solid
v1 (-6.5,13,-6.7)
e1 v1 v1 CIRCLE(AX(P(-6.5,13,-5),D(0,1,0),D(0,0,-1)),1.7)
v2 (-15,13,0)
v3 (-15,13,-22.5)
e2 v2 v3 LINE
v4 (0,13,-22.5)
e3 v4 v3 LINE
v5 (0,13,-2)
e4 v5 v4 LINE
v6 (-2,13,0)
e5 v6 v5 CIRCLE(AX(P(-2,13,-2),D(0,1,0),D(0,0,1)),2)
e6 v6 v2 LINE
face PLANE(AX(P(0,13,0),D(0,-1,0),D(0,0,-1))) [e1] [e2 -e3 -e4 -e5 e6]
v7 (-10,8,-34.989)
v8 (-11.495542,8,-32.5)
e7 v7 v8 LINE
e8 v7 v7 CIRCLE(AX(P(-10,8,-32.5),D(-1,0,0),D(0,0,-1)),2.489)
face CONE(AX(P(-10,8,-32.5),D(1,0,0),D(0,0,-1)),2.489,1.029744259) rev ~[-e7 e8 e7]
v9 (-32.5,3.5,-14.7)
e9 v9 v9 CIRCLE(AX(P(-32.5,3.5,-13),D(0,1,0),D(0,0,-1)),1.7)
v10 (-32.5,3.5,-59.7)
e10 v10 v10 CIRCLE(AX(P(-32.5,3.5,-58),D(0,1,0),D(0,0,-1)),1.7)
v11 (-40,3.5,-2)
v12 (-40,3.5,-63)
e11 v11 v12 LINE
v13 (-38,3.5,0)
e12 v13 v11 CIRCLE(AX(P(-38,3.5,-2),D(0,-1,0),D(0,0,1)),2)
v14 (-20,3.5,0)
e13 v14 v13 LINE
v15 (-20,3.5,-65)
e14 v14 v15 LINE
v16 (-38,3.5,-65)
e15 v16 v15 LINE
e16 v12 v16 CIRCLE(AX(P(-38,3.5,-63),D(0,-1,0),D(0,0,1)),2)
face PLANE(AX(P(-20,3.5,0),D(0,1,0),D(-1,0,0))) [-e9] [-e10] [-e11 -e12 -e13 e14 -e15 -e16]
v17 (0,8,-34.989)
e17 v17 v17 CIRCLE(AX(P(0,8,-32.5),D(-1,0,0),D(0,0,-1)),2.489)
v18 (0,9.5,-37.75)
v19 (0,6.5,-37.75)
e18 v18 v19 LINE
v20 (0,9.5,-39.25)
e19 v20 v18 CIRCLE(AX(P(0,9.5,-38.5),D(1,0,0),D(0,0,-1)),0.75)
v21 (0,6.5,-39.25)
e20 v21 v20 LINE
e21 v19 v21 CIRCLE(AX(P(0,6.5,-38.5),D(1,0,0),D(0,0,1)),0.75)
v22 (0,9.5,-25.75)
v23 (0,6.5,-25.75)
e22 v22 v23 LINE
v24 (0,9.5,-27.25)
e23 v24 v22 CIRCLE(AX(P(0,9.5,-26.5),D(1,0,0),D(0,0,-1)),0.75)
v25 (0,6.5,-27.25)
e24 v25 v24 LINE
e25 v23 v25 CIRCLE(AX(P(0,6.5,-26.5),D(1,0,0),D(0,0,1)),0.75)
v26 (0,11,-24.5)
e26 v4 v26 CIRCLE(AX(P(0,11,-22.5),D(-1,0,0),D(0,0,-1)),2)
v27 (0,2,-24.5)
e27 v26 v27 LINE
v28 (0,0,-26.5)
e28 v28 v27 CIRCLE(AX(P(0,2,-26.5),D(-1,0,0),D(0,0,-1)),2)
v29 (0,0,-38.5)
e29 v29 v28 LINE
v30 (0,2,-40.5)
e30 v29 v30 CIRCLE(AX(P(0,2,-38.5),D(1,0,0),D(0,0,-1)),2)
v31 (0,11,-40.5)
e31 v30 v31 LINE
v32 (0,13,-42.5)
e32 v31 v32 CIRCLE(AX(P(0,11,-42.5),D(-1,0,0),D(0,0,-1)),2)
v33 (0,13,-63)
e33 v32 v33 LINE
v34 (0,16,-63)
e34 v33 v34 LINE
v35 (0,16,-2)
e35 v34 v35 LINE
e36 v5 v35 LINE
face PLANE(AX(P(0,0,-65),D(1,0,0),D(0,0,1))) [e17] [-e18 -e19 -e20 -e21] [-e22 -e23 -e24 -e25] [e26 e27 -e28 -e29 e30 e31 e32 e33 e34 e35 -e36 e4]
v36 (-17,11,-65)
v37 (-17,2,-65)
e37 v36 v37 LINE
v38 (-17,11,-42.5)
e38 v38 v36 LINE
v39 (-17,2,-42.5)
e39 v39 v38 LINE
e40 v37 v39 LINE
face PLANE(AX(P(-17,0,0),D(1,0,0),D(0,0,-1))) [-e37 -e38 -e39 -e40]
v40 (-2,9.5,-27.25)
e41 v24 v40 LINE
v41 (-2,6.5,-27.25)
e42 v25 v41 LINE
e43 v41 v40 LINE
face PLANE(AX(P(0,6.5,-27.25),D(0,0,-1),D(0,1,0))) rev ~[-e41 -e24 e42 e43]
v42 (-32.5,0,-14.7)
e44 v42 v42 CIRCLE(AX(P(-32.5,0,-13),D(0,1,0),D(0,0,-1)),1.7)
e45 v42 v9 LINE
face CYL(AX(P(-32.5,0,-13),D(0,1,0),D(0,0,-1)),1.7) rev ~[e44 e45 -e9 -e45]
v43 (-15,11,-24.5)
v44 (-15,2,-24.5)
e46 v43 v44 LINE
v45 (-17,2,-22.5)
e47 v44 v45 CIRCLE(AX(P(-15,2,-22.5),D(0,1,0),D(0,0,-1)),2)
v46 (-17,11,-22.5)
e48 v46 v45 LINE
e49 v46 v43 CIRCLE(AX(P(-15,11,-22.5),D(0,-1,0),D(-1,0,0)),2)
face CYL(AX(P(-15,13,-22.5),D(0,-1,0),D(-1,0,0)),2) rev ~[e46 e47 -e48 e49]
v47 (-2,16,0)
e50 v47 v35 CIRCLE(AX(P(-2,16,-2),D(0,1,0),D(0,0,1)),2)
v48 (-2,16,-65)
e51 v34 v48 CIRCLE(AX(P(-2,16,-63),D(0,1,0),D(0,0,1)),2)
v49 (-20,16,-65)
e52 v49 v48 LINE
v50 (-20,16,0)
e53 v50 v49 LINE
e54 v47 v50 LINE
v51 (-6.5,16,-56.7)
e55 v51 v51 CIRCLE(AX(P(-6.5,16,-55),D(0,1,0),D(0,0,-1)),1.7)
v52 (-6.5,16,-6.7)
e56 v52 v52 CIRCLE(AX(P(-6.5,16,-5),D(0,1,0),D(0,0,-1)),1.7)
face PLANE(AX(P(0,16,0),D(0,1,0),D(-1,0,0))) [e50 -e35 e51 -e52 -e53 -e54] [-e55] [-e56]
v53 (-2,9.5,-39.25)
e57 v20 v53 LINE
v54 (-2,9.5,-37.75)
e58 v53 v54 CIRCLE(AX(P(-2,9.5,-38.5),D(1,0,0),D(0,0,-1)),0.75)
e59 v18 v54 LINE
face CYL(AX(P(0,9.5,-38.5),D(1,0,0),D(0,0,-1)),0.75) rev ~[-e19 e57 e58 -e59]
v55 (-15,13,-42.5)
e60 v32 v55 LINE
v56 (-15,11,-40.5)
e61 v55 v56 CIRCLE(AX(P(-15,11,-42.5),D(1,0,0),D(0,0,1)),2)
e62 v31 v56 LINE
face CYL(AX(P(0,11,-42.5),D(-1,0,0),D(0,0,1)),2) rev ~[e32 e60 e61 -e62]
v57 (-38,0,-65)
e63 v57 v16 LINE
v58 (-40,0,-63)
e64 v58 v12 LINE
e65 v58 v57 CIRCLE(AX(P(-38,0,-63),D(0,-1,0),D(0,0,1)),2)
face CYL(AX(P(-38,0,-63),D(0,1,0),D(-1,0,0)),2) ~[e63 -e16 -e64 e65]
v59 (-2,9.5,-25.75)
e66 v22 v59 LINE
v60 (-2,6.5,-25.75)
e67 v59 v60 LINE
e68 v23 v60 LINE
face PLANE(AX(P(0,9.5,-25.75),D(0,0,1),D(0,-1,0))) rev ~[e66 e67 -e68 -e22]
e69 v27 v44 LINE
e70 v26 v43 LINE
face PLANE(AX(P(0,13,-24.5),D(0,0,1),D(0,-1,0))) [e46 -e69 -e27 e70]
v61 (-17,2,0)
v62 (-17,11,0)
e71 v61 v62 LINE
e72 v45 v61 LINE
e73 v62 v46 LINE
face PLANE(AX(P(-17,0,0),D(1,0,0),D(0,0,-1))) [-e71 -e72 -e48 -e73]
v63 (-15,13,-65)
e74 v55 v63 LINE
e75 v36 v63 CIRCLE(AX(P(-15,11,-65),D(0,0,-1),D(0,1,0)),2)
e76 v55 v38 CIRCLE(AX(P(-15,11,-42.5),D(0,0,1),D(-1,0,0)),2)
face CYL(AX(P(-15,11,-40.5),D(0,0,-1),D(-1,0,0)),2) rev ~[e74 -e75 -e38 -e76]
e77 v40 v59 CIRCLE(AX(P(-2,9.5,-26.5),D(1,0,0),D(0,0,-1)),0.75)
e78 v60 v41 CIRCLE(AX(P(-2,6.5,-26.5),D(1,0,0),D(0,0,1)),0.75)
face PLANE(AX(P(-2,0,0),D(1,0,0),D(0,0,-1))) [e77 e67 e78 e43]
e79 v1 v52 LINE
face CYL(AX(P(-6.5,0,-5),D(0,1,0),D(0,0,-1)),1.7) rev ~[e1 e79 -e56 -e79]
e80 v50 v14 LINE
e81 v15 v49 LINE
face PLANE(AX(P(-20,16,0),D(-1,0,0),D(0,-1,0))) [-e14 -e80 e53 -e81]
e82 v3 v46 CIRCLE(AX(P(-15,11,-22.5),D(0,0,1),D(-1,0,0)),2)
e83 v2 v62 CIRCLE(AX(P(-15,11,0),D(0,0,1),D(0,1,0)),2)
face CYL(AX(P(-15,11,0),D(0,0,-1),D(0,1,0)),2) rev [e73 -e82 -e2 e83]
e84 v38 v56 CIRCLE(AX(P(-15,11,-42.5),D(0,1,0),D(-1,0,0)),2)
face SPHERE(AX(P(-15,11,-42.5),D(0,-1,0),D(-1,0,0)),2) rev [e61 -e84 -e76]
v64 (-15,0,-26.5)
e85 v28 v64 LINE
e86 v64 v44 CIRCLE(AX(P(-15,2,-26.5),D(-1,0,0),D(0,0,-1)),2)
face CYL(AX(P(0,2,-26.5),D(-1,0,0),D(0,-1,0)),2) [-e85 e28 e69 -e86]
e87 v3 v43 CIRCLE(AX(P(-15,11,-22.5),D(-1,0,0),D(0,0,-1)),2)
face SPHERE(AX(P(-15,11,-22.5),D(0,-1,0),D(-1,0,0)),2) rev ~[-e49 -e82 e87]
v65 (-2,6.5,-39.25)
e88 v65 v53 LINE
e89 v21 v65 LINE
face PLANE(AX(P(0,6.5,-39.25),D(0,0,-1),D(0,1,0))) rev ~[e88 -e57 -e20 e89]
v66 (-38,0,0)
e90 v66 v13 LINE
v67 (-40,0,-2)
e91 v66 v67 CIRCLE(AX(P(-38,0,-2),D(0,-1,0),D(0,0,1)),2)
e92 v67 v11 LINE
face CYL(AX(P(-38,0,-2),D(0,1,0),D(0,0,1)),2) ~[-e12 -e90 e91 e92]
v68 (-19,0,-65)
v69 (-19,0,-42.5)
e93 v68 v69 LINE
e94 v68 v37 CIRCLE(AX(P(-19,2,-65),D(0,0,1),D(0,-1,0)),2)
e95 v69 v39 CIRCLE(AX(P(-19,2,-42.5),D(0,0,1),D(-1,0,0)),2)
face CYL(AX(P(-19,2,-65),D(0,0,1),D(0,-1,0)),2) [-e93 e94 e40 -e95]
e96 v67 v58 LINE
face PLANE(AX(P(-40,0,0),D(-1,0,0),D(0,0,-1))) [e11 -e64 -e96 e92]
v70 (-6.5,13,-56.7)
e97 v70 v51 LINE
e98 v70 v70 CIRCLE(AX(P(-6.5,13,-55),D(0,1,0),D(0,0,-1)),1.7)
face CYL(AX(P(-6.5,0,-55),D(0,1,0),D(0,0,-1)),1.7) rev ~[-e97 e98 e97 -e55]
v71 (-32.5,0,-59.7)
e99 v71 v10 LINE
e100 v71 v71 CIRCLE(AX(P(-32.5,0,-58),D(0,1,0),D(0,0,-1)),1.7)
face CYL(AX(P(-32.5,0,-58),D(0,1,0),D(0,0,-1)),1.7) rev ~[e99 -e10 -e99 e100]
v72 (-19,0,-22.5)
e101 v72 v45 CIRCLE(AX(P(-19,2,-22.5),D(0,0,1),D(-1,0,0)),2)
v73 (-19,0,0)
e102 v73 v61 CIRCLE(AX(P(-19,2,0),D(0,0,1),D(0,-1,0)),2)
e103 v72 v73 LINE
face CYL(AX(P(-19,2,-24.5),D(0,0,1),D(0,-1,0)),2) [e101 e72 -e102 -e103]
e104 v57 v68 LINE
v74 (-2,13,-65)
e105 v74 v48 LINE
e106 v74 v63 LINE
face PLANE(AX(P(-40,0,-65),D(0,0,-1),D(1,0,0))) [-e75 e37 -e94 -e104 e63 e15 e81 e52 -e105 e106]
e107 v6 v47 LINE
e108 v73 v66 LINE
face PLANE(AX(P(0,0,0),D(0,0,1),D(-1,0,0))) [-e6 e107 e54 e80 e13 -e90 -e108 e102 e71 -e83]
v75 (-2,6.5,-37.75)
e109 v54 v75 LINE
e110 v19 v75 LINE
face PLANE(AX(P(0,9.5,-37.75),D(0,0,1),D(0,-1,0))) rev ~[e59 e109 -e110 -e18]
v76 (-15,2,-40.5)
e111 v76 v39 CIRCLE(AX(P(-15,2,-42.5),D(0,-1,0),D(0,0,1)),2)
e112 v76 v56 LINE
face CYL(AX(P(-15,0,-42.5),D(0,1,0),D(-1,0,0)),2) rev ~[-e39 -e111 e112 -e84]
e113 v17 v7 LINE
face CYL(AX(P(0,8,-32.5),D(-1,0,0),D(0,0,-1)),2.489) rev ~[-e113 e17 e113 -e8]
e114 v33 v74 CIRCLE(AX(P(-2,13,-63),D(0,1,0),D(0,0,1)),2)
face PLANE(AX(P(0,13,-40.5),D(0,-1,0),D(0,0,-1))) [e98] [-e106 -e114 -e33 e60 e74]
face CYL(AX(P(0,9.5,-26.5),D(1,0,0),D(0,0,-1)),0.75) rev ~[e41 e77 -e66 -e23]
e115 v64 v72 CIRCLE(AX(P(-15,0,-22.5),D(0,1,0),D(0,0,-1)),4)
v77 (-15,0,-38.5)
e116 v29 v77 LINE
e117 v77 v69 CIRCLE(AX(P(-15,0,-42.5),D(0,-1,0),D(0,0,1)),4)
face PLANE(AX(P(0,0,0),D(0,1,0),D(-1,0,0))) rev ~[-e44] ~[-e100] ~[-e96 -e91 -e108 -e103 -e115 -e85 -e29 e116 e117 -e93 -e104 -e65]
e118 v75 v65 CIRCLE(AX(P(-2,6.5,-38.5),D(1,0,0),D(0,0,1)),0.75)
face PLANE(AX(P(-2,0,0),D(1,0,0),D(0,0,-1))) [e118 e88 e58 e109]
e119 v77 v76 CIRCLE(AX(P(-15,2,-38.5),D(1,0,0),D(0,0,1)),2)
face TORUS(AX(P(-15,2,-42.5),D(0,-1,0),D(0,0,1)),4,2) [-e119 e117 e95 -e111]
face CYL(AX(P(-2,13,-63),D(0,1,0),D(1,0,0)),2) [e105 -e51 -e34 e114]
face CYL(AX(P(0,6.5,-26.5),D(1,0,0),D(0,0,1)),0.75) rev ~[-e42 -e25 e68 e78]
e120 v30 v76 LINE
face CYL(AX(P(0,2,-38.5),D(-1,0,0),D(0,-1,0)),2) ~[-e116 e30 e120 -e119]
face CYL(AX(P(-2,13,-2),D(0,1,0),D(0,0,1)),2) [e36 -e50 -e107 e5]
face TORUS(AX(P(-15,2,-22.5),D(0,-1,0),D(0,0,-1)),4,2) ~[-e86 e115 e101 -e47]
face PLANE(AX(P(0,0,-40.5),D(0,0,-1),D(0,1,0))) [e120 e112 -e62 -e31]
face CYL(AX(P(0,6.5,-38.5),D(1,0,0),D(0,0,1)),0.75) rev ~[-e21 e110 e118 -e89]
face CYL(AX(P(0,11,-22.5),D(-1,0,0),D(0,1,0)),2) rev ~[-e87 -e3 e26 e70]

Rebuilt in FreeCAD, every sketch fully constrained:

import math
import FreeCAD as App
import Part
import Sketcher
Q = App.Units.Quantity


def edges_at(feature, points):
    """Names of the edges that pass closest to the given points."""
    edges = feature.Shape.Edges
    near = lambda p: min(range(len(edges)), key=lambda i: edges[i].distToShape(Part.Vertex(*p))[0])
    return sorted({f"Edge{near(p) + 1}" for p in points})

doc = App.newDocument("Part")
body = doc.addObject("PartDesign::Body", "Body")

sketch1 = doc.addObject("Sketcher::SketchObject", "Sketch")
body.addObject(sketch1)
sketch1.AttachmentSupport = (doc.XZ_Plane, [""])
sketch1.MapMode = "FlatFace"
sketch1.addGeometry(Part.LineSegment(App.Vector(-40, 0, 0), App.Vector(0, 0, 0)), False)
sketch1.addGeometry(Part.LineSegment(App.Vector(0, 0, 0), App.Vector(0, -65, 0)), False)
sketch1.addGeometry(Part.LineSegment(App.Vector(0, -65, 0), App.Vector(-40, -65, 0)), False)
sketch1.addGeometry(Part.LineSegment(App.Vector(-40, -65, 0), App.Vector(-40, 0, 0)), False)
sketch1.addConstraint(Sketcher.Constraint("Coincident", 0, 2, 1, 1))
sketch1.addConstraint(Sketcher.Constraint("Coincident", 1, 2, 2, 1))
sketch1.addConstraint(Sketcher.Constraint("Coincident", 2, 2, 3, 1))
sketch1.addConstraint(Sketcher.Constraint("Coincident", 3, 2, 0, 1))
sketch1.addConstraint(Sketcher.Constraint("Horizontal", 0))
sketch1.addConstraint(Sketcher.Constraint("Vertical", 1))
sketch1.addConstraint(Sketcher.Constraint("Horizontal", 2))
sketch1.addConstraint(Sketcher.Constraint("Vertical", 3))
sketch1.addConstraint(Sketcher.Constraint("Coincident", 0, 2, -1, 1))
sketch1.addConstraint(Sketcher.Constraint("DistanceX", 0, 1, 0, 2, Q("40 mm")))
sketch1.addConstraint(Sketcher.Constraint("DistanceY", 1, 2, 1, 1, Q("65 mm")))
pad1 = doc.addObject("PartDesign::Pad", "Pad")
body.addObject(pad1)
pad1.Profile = sketch1
pad1.Length = 16
pad1.Reversed = True

sketch2 = doc.addObject("Sketcher::SketchObject", "Sketch001")
body.addObject(sketch2)
sketch2.AttachmentSupport = (doc.XY_Plane, [""])
sketch2.MapMode = "FlatFace"
sketch2.addGeometry(Part.LineSegment(App.Vector(-20, 16, 0), App.Vector(-40, 16, 0)), False)
sketch2.addGeometry(Part.LineSegment(App.Vector(-40, 16, 0), App.Vector(-40, 4, 0)), False)
sketch2.addGeometry(Part.LineSegment(App.Vector(-40, 4, 0), App.Vector(-20, 4, 0)), False)
sketch2.addGeometry(Part.LineSegment(App.Vector(-20, 4, 0), App.Vector(-20, 16, 0)), False)
sketch2.addConstraint(Sketcher.Constraint("Coincident", 0, 2, 1, 1))
sketch2.addConstraint(Sketcher.Constraint("Coincident", 1, 2, 2, 1))
sketch2.addConstraint(Sketcher.Constraint("Coincident", 2, 2, 3, 1))
sketch2.addConstraint(Sketcher.Constraint("Coincident", 3, 2, 0, 1))
sketch2.addConstraint(Sketcher.Constraint("Horizontal", 0))
sketch2.addConstraint(Sketcher.Constraint("Vertical", 1))
sketch2.addConstraint(Sketcher.Constraint("Horizontal", 2))
sketch2.addConstraint(Sketcher.Constraint("Vertical", 3))
sketch2.addConstraint(Sketcher.Constraint("DistanceX", 0, 2, 0, 1, Q("20 mm")))
sketch2.addConstraint(Sketcher.Constraint("DistanceX", 2, 2, -1, 1, Q("20 mm")))
sketch2.addConstraint(Sketcher.Constraint("DistanceY", -1, 1, 1, 2, Q("3.5 mm")))
sketch2.addConstraint(Sketcher.Constraint("DistanceY", 1, 2, 1, 1, Q("12.5 mm")))
pocket1 = doc.addObject("PartDesign::Pocket", "Pocket")
body.addObject(pocket1)
pocket1.Profile = sketch2
pocket1.Type = "ThroughAll"

sketch3 = doc.addObject("Sketcher::SketchObject", "Sketch002")
body.addObject(sketch3)
sketch3.AttachmentSupport = (doc.XZ_Plane, [""])
sketch3.MapMode = "FlatFace"
sketch3.addGeometry(Part.Circle(App.Vector(-32.5, -58, 0), App.Vector(0, 0, 1), 1.7), False)
sketch3.addGeometry(Part.Circle(App.Vector(-32.5, -13, 0), App.Vector(0, 0, 1), 1.7), False)
sketch3.addGeometry(Part.Circle(App.Vector(-6.5, -55, 0), App.Vector(0, 0, 1), 1.7), False)
sketch3.addGeometry(Part.Circle(App.Vector(-6.5, -5, 0), App.Vector(0, 0, 1), 1.7), False)
sketch3.addConstraint(Sketcher.Constraint("Equal", 0, 1))
sketch3.addConstraint(Sketcher.Constraint("Equal", 1, 2))
sketch3.addConstraint(Sketcher.Constraint("Equal", 2, 3))
sketch3.addConstraint(Sketcher.Constraint("Vertical", 0, 3, 1, 3))
sketch3.addConstraint(Sketcher.Constraint("Vertical", 2, 3, 3, 3))
sketch3.addConstraint(Sketcher.Constraint("Diameter", 0, Q("3.4 mm")))
sketch3.addConstraint(Sketcher.Constraint("DistanceY", 0, 3, -1, 1, Q("58 mm")))
sketch3.addConstraint(Sketcher.Constraint("DistanceY", 1, 3, -1, 1, Q("13 mm")))
sketch3.addConstraint(Sketcher.Constraint("DistanceY", 2, 3, -1, 1, Q("55 mm")))
sketch3.addConstraint(Sketcher.Constraint("DistanceY", 3, 3, -1, 1, Q("5 mm")))
sketch3.addConstraint(Sketcher.Constraint("DistanceX", 0, 3, 2, 3, Q("26 mm")))
sketch3.addConstraint(Sketcher.Constraint("DistanceX", 0, 3, -1, 1, Q("32.5 mm")))
doc.recompute()
hole = doc.addObject("PartDesign::Hole", "Hole")
body.addObject(hole)
hole.Profile = sketch3
hole.ThreadType = "None"
hole.Diameter = 3.4
hole.DepthType = "ThroughAll"

sketch4 = doc.addObject("Sketcher::SketchObject", "Sketch003")
body.addObject(sketch4)
sketch4.AttachmentSupport = (doc.YZ_Plane, [""])
sketch4.MapMode = "FlatFace"
sketch4.addGeometry(Part.ArcOfCircle(Part.Circle(App.Vector(6.5, -38.5, 0), App.Vector(0, 0, 1), 0.8), math.radians(90), math.radians(270)), False)
sketch4.addGeometry(Part.LineSegment(App.Vector(6.5, -39.2, 0), App.Vector(9.5, -39.2, 0)), False)
sketch4.addGeometry(Part.ArcOfCircle(Part.Circle(App.Vector(9.5, -38.5, 0), App.Vector(0, 0, 1), 0.8), math.radians(-90), math.radians(90)), False)
sketch4.addGeometry(Part.LineSegment(App.Vector(9.5, -37.8, 0), App.Vector(6.5, -37.8, 0)), False)
sketch4.addGeometry(Part.ArcOfCircle(Part.Circle(App.Vector(6.5, -26.5, 0), App.Vector(0, 0, 1), 0.8), math.radians(90), math.radians(270)), False)
sketch4.addGeometry(Part.LineSegment(App.Vector(6.5, -27.2, 0), App.Vector(9.5, -27.2, 0)), False)
sketch4.addGeometry(Part.ArcOfCircle(Part.Circle(App.Vector(9.5, -26.5, 0), App.Vector(0, 0, 1), 0.8), math.radians(-90), math.radians(90)), False)
sketch4.addGeometry(Part.LineSegment(App.Vector(9.5, -25.8, 0), App.Vector(6.5, -25.8, 0)), False)
sketch4.addConstraint(Sketcher.Constraint("Tangent", 0, 2, 1, 1))
sketch4.addConstraint(Sketcher.Constraint("Tangent", 1, 2, 2, 1))
sketch4.addConstraint(Sketcher.Constraint("Tangent", 2, 2, 3, 1))
sketch4.addConstraint(Sketcher.Constraint("Tangent", 3, 2, 0, 1))
sketch4.addConstraint(Sketcher.Constraint("Tangent", 4, 2, 5, 1))
sketch4.addConstraint(Sketcher.Constraint("Tangent", 5, 2, 6, 1))
sketch4.addConstraint(Sketcher.Constraint("Tangent", 6, 2, 7, 1))
sketch4.addConstraint(Sketcher.Constraint("Tangent", 7, 2, 4, 1))
sketch4.addConstraint(Sketcher.Constraint("Horizontal", 1))
sketch4.addConstraint(Sketcher.Constraint("Horizontal", 3))
sketch4.addConstraint(Sketcher.Constraint("Horizontal", 5))
sketch4.addConstraint(Sketcher.Constraint("Horizontal", 7))
sketch4.addConstraint(Sketcher.Constraint("Equal", 2, 4))
sketch4.addConstraint(Sketcher.Constraint("Vertical", 0, 3, 4, 3))
sketch4.addConstraint(Sketcher.Constraint("Vertical", 2, 3, 6, 3))
sketch4.addConstraint(Sketcher.Constraint("DistanceX", 1, 1, 1, 2, Q("3 mm")))
sketch4.addConstraint(Sketcher.Constraint("Radius", 0, Q("0.75 mm")))
sketch4.addConstraint(Sketcher.Constraint("DistanceY", 0, 3, 4, 3, Q("12 mm")))
sketch4.addConstraint(Sketcher.Constraint("DistanceX", -1, 1, 0, 3, Q("6.5 mm")))
sketch4.addConstraint(Sketcher.Constraint("DistanceY", 0, 3, -1, 1, Q("38.5 mm")))
pocket2 = doc.addObject("PartDesign::Pocket", "Pocket001")
body.addObject(pocket2)
pocket2.Profile = sketch4
pocket2.Length = 2

sketch5 = doc.addObject("Sketcher::SketchObject", "Sketch004")
body.addObject(sketch5)
sketch5.AttachmentSupport = (doc.YZ_Plane, [""])
sketch5.MapMode = "FlatFace"
sketch5.addGeometry(Part.LineSegment(App.Vector(0, -40, 0), App.Vector(0, -65, 0)), False)
sketch5.addGeometry(Part.LineSegment(App.Vector(0, -65, 0), App.Vector(13, -65, 0)), False)
sketch5.addGeometry(Part.LineSegment(App.Vector(13, -65, 0), App.Vector(13, -40, 0)), False)
sketch5.addGeometry(Part.LineSegment(App.Vector(13, -40, 0), App.Vector(0, -40, 0)), False)
sketch5.addGeometry(Part.LineSegment(App.Vector(0, 0, 0), App.Vector(0, -24, 0)), False)
sketch5.addGeometry(Part.LineSegment(App.Vector(0, -24, 0), App.Vector(13, -24, 0)), False)
sketch5.addGeometry(Part.LineSegment(App.Vector(13, -24, 0), App.Vector(13, 0, 0)), False)
sketch5.addGeometry(Part.LineSegment(App.Vector(13, 0, 0), App.Vector(0, 0, 0)), False)
sketch5.addConstraint(Sketcher.Constraint("Coincident", 0, 2, 1, 1))
sketch5.addConstraint(Sketcher.Constraint("Coincident", 1, 2, 2, 1))
sketch5.addConstraint(Sketcher.Constraint("Coincident", 2, 2, 3, 1))
sketch5.addConstraint(Sketcher.Constraint("Coincident", 3, 2, 0, 1))
sketch5.addConstraint(Sketcher.Constraint("Coincident", 4, 2, 5, 1))
sketch5.addConstraint(Sketcher.Constraint("Coincident", 5, 2, 6, 1))
sketch5.addConstraint(Sketcher.Constraint("Coincident", 6, 2, 7, 1))
sketch5.addConstraint(Sketcher.Constraint("Coincident", 7, 2, 4, 1))
sketch5.addConstraint(Sketcher.Constraint("Vertical", 0))
sketch5.addConstraint(Sketcher.Constraint("Horizontal", 1))
sketch5.addConstraint(Sketcher.Constraint("Vertical", 2))
sketch5.addConstraint(Sketcher.Constraint("Horizontal", 3))
sketch5.addConstraint(Sketcher.Constraint("Vertical", 4))
sketch5.addConstraint(Sketcher.Constraint("Horizontal", 5))
sketch5.addConstraint(Sketcher.Constraint("Vertical", 6))
sketch5.addConstraint(Sketcher.Constraint("Horizontal", 7))
sketch5.addConstraint(Sketcher.Constraint("Coincident", 7, 2, -1, 1))
sketch5.addConstraint(Sketcher.Constraint("PointOnObject", 0, 2, -2))
sketch5.addConstraint(Sketcher.Constraint("Vertical", 2, 2, 5, 2))
sketch5.addConstraint(Sketcher.Constraint("Equal", 2, 4))
sketch5.addConstraint(Sketcher.Constraint("DistanceY", 0, 2, -1, 1, Q("65 mm")))
sketch5.addConstraint(Sketcher.Constraint("DistanceY", 3, 2, 4, 2, Q("16 mm")))
sketch5.addConstraint(Sketcher.Constraint("DistanceX", 1, 1, 1, 2, Q("13 mm")))
pocket3 = doc.addObject("PartDesign::Pocket", "Pocket002")
body.addObject(pocket3)
pocket3.Profile = sketch5
pocket3.Length = 17
doc.recompute()

fillet = doc.addObject("PartDesign::Fillet", "Fillet")
body.addObject(fillet)
fillet.Base = (pocket3, edges_at(pocket3, [
    (-8.5, 0, -40.5),
    (-8.5, 0, -24.5),
    (-40, 1.75, -65),
    (-40, 1.75, 0),
    (0, 14.5, 0),
    (0, 14.5, -65),
    (-17, 0, -52.75),
    (-17, 0, -12.25),
    (-17, 6.5, -40.5),
    (-17, 6.5, -24.5),
    (-17, 13, -52.75),
    (-8.5, 13, -40.5),
    (-17, 13, -12.25),
    (-8.5, 13, -24.5),
]))
fillet.Radius = 2

sketch6 = doc.addObject("Sketcher::SketchObject", "Sketch005")
body.addObject(sketch6)
sketch6.AttachmentSupport = (doc.YZ_Plane, [""])
sketch6.MapMode = "FlatFace"
sketch6.addGeometry(Part.Circle(App.Vector(8, -32.5, 0), App.Vector(0, 0, 1), 2.5), False)
sketch6.addConstraint(Sketcher.Constraint("Diameter", 0, Q("4.978 mm")))
sketch6.addConstraint(Sketcher.Constraint("DistanceX", -1, 1, 0, 3, Q("8 mm")))
sketch6.addConstraint(Sketcher.Constraint("DistanceY", 0, 3, -1, 1, Q("32.5 mm")))
doc.recompute()
hole2 = doc.addObject("PartDesign::Hole", "Hole001")
body.addObject(hole2)
hole2.Profile = sketch6
hole2.ThreadType = "None"
hole2.Diameter = 4.978
hole2.DepthType = "Dimension"
hole2.Depth = 10
hole2.DrillPoint = "Angled"
hole2.DrillPointAngle = 118

doc.recompute()
